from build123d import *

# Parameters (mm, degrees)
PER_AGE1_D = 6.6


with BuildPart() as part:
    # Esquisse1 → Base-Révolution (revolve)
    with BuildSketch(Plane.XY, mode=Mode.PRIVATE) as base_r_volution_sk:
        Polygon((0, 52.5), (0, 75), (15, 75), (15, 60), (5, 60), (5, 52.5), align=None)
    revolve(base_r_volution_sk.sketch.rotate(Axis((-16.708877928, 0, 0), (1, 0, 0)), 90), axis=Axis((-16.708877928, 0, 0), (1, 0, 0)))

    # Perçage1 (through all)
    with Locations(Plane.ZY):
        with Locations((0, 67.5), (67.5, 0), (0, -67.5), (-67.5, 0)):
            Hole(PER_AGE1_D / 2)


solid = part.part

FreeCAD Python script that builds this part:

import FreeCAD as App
import Part
import Sketcher

V = App.Vector
Q = App.Units.Quantity

doc = App.newDocument("Part")
body = doc.addObject("PartDesign::Body", "Body")

sketch1 = body.newObject("Sketcher::SketchObject", "Sketch")
sketch1.AttachmentSupport = (doc.getObject("XY_Plane"), [""])
sketch1.MapMode = "FlatFace"
sketch1.addGeometry([
    Part.LineSegment(V(0, 75, 0), V(0, 52, 0)),
    Part.LineSegment(V(0, 52, 0), V(5, 52, 0)),
    Part.LineSegment(V(5, 52, 0), V(5, 60, 0)),
    Part.LineSegment(V(5, 60, 0), V(15, 60, 0)),
    Part.LineSegment(V(15, 60, 0), V(15, 75, 0)),
    Part.LineSegment(V(15, 75, 0), V(0, 75, 0)),
], False)
sketch1.addConstraint([
    Sketcher.Constraint("Coincident", 0, 2, 1, 1),
    Sketcher.Constraint("Coincident", 1, 2, 2, 1),
    Sketcher.Constraint("Coincident", 2, 2, 3, 1),
    Sketcher.Constraint("Coincident", 3, 2, 4, 1),
    Sketcher.Constraint("Coincident", 4, 2, 5, 1),
    Sketcher.Constraint("Coincident", 5, 2, 0, 1),
    Sketcher.Constraint("Vertical", 0),
    Sketcher.Constraint("Horizontal", 1),
    Sketcher.Constraint("Vertical", 2),
    Sketcher.Constraint("Horizontal", 3),
    Sketcher.Constraint("Vertical", 4),
    Sketcher.Constraint("Horizontal", 5),
    Sketcher.Constraint("PointOnObject", 0, 2, -2),
    Sketcher.Constraint("Equal", 5, 4),
    Sketcher.Constraint("DistanceX", 1, 1, 1, 2, Q("5 mm")),
    Sketcher.Constraint("DistanceX", 3, 1, 3, 2, Q("10 mm")),
    Sketcher.Constraint("DistanceY", 0, 2, 0, 1, Q("22.5 mm")),
    Sketcher.Constraint("DistanceY", -1, 1, 2, 2, Q("60 mm")),
])
revolution = body.newObject("PartDesign::Revolution", "Revolution")
revolution.Profile = sketch1
revolution.ReferenceAxis = (sketch1, ["H_Axis"])
revolution.Angle = 360

sketch2 = body.newObject("Sketcher::SketchObject", "Sketch001")
sketch2.AttachmentSupport = (doc.getObject("YZ_Plane"), [""])
sketch2.MapMode = "FlatFace"
sketch2.addGeometry([
    Part.Circle(V(67.5, 0, 0), V(0, 0, 1), 3.3),
    Part.Circle(V(0, 67.5, 0), V(0, 0, 1), 3.3),
    Part.Circle(V(-67.5, 0, 0), V(0, 0, 1), 3.3),
    Part.Circle(V(0, -67.5, 0), V(0, 0, 1), 3.3),
], False)
sketch2.addConstraint([
    Sketcher.Constraint("Equal", 0, 1),
    Sketcher.Constraint("Equal", 1, 2),
    Sketcher.Constraint("Equal", 2, 3),
    Sketcher.Constraint("Symmetric", 0, 3, 2, 3, -1, 1),
    Sketcher.Constraint("Symmetric", 1, 3, 3, 3, -1, 1),
    Sketcher.Constraint("PointOnObject", 0, 3, -1),
    Sketcher.Constraint("PointOnObject", 1, 3, -2),
    Sketcher.Constraint("Diameter", 0, Q("6.6 mm")),
    Sketcher.Constraint("DistanceX", 2, 3, 0, 3, Q("135 mm")),
    Sketcher.Constraint("DistanceY", 3, 3, 1, 3, Q("135 mm")),
])
doc.recompute()
hole = body.newObject("PartDesign::Hole", "Hole")
hole.Profile = sketch2
hole.ThreadType = "None"
hole.Diameter = 6.6
hole.DepthType = "ThroughAll"
hole.Reversed = True

doc.recompute()
